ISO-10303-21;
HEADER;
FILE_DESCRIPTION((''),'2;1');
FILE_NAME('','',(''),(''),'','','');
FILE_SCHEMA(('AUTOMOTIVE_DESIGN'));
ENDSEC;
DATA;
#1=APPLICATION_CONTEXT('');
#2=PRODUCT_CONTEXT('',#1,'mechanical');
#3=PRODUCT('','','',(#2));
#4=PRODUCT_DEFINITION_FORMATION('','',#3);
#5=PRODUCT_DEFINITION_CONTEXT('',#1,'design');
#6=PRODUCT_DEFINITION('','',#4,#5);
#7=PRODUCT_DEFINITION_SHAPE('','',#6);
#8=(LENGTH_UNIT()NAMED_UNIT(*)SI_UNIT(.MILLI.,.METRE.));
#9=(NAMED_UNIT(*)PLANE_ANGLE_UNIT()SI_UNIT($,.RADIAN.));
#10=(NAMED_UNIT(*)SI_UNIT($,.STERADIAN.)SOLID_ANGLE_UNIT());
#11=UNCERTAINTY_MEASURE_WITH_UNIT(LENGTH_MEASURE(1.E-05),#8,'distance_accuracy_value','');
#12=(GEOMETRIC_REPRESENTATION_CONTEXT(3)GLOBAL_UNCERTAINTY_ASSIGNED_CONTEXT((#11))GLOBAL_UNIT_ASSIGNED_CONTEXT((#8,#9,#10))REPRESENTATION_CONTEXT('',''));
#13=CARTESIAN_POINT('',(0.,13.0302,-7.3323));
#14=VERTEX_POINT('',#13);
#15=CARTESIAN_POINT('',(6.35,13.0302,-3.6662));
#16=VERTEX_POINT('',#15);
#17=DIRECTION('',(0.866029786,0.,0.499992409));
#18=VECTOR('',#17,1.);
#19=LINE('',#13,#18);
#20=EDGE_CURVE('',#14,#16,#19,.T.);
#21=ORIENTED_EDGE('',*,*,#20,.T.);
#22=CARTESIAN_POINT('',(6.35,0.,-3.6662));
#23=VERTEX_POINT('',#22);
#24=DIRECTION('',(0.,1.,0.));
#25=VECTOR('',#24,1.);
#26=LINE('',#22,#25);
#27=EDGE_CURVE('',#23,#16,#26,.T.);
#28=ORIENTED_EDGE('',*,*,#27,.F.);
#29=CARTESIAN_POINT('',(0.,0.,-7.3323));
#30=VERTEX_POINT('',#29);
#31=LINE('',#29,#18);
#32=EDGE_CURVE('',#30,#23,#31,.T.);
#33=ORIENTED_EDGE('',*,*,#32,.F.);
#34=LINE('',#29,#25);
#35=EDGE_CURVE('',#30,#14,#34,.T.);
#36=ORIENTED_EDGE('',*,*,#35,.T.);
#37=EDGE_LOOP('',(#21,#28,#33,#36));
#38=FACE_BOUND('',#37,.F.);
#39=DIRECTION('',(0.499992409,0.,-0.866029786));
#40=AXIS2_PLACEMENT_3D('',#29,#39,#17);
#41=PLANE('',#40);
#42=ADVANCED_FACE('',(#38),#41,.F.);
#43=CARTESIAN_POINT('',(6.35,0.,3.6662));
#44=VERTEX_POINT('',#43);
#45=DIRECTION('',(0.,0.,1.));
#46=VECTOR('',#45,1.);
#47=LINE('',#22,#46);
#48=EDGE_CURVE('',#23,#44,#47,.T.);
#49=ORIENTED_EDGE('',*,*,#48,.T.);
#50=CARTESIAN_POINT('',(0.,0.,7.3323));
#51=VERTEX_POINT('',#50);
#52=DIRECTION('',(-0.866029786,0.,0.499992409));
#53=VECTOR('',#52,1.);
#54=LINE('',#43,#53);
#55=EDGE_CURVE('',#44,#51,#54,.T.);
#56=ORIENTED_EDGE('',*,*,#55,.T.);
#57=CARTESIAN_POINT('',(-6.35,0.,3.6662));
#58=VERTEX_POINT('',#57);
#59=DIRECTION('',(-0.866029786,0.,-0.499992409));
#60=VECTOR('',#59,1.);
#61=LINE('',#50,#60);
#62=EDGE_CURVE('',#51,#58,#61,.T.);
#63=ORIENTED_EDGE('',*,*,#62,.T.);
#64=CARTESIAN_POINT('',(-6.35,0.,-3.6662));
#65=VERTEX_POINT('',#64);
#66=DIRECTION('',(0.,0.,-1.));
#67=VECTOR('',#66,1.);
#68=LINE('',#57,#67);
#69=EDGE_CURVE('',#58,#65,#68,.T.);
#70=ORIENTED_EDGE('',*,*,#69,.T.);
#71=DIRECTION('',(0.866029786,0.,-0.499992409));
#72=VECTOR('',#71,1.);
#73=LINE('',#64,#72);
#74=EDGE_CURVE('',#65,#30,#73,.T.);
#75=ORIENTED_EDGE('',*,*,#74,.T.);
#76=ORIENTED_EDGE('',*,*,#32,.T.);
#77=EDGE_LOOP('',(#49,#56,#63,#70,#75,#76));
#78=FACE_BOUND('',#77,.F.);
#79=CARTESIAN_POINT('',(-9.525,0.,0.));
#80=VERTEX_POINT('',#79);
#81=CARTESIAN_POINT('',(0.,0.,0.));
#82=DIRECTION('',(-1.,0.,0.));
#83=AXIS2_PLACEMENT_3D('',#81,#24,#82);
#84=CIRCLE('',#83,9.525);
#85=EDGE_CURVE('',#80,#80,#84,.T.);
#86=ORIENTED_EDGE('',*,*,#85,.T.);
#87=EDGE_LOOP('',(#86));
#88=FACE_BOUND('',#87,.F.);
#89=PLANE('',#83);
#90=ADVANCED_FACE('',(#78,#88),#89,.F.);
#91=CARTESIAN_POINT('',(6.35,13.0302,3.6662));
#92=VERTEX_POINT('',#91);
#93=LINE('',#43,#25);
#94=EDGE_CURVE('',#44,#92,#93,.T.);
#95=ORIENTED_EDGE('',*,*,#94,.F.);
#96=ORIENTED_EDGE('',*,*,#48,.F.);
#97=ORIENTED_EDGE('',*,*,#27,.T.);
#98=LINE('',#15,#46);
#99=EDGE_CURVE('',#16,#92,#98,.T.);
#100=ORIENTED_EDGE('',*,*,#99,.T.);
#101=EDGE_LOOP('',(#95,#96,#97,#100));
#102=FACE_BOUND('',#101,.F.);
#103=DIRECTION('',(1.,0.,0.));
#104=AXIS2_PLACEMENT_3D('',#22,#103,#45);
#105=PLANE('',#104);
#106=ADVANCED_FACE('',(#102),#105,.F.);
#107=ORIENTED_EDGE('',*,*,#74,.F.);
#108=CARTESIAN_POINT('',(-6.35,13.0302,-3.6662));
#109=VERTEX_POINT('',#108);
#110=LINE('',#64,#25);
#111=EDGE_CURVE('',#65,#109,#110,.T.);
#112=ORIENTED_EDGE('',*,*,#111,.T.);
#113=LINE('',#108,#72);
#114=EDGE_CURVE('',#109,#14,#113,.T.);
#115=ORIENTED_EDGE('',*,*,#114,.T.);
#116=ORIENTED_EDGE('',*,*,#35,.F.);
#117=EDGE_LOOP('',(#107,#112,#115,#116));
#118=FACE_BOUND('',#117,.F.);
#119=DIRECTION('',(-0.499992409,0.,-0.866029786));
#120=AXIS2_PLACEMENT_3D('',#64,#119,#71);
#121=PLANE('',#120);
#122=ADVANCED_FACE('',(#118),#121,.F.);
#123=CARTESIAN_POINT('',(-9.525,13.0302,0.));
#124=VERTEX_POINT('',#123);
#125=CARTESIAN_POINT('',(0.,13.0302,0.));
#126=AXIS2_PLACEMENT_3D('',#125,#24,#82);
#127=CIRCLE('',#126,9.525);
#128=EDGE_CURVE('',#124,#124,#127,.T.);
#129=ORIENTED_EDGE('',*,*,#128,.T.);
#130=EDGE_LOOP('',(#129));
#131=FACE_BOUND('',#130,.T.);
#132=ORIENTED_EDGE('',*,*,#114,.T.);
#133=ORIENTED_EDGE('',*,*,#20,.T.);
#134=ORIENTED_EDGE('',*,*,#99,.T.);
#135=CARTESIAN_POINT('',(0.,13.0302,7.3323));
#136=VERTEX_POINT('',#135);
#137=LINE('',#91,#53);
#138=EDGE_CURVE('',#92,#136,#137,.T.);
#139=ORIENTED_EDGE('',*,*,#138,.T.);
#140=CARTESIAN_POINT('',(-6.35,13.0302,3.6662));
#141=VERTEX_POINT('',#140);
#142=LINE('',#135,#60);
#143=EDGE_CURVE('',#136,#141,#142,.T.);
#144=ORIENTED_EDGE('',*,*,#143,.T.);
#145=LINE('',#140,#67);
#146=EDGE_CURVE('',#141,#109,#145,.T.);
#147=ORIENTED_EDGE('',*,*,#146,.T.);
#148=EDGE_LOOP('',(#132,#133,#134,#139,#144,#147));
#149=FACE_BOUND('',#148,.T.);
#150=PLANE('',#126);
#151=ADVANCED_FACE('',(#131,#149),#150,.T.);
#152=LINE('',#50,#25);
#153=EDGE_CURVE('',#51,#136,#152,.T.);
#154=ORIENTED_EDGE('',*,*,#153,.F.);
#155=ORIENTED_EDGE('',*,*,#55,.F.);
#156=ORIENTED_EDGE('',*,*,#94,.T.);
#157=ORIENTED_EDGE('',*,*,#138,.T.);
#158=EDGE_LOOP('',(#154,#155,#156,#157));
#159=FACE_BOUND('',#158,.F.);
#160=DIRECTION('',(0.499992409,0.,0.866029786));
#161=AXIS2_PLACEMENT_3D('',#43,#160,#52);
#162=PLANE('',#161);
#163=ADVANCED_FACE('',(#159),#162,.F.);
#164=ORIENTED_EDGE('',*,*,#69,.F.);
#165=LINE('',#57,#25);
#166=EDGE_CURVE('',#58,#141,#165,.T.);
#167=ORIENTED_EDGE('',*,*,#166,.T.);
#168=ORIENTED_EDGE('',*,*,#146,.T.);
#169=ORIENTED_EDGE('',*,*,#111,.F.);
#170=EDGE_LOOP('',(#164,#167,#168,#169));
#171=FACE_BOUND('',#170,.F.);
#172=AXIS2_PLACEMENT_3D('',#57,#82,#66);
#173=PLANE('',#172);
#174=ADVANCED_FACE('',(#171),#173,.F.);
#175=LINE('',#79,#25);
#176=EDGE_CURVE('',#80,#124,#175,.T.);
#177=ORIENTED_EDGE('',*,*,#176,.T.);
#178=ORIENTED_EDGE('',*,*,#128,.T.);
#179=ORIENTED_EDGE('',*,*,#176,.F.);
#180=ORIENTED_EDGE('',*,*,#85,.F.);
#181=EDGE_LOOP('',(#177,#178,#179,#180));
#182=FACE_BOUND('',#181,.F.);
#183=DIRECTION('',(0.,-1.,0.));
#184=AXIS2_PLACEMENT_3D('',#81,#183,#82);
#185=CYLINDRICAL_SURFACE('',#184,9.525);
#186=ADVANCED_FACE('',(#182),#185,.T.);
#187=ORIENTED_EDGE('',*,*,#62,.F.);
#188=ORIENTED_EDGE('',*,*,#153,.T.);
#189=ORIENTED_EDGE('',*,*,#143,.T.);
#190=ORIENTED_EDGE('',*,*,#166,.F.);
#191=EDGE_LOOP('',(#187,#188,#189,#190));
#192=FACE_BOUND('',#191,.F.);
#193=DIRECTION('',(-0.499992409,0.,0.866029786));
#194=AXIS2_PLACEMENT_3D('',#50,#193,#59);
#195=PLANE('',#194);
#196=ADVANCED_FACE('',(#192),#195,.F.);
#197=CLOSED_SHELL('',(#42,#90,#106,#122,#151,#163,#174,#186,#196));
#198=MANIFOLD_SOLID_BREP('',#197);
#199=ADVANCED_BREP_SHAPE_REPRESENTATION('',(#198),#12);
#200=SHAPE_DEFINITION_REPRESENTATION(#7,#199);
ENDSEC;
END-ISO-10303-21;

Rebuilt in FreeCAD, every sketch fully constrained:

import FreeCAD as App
import Part
import Sketcher
from FreeCAD import Vector
Q = App.Units.Quantity

doc = App.newDocument("Part")
body = doc.addObject("PartDesign::Body", "Body")

# Sketch on XZ plane
sketch1 = body.newObject("Sketcher::SketchObject", "Sketch")
sketch1.AttachmentSupport = (doc.getObject("XZ_Plane"), [""])
sketch1.MapMode = "FlatFace"
sketch1.addGeometry(Part.Circle(Vector(0, 0, 0), Vector(0, 0, 1), 10), False)
sketch1.addGeometry(Part.LineSegment(Vector(-6, 4, 0), Vector(-6, -4, 0)), False)
sketch1.addGeometry(Part.LineSegment(Vector(-6, -4, 0), Vector(0, -7, 0)), False)
sketch1.addGeometry(Part.LineSegment(Vector(0, -7, 0), Vector(6, -4, 0)), False)
sketch1.addGeometry(Part.LineSegment(Vector(6, -4, 0), Vector(6, 4, 0)), False)
sketch1.addGeometry(Part.LineSegment(Vector(6, 4, 0), Vector(0, 7, 0)), False)
sketch1.addGeometry(Part.LineSegment(Vector(0, 7, 0), Vector(-6, 4, 0)), False)
sketch1.addConstraint(Sketcher.Constraint("Coincident", 1, 2, 2, 1))
sketch1.addConstraint(Sketcher.Constraint("Coincident", 2, 2, 3, 1))
sketch1.addConstraint(Sketcher.Constraint("Coincident", 3, 2, 4, 1))
sketch1.addConstraint(Sketcher.Constraint("Coincident", 4, 2, 5, 1))
sketch1.addConstraint(Sketcher.Constraint("Coincident", 5, 2, 6, 1))
sketch1.addConstraint(Sketcher.Constraint("Coincident", 6, 2, 1, 1))
sketch1.addConstraint(Sketcher.Constraint("Vertical", 1))
sketch1.addConstraint(Sketcher.Constraint("Vertical", 4))
sketch1.addConstraint(Sketcher.Constraint("Coincident", 0, 3, -1, 1))
sketch1.addConstraint(Sketcher.Constraint("Symmetric", 1, 2, 4, 2, -1, 1))
sketch1.addConstraint(Sketcher.Constraint("Symmetric", 2, 2, 5, 2, -1, 1))
sketch1.addConstraint(Sketcher.Constraint("PointOnObject", 2, 2, -2))
sketch1.addConstraint(Sketcher.Constraint("Parallel", 3, 6))
sketch1.addConstraint(Sketcher.Constraint("Horizontal", 1, 2, 3, 2))
sketch1.addConstraint(Sketcher.Constraint("Diameter", 0, Q("0.75 in")))
sketch1.addConstraint(Sketcher.Constraint("DistanceX", 1, 2, 3, 2, Q("0.5 in")))
sketch1.addConstraint(Sketcher.Constraint("Angle", 2, Q("-29.9995 deg")))
sketch1.addConstraint(Sketcher.Constraint("DistanceY", 2, 2, 4, 2, Q("0.433 in")))
pad1 = body.newObject("PartDesign::Pad", "Pad")
pad1.Profile = sketch1
pad1.Length = Q("0.513 in")
pad1.Reversed = True

doc.recompute()
